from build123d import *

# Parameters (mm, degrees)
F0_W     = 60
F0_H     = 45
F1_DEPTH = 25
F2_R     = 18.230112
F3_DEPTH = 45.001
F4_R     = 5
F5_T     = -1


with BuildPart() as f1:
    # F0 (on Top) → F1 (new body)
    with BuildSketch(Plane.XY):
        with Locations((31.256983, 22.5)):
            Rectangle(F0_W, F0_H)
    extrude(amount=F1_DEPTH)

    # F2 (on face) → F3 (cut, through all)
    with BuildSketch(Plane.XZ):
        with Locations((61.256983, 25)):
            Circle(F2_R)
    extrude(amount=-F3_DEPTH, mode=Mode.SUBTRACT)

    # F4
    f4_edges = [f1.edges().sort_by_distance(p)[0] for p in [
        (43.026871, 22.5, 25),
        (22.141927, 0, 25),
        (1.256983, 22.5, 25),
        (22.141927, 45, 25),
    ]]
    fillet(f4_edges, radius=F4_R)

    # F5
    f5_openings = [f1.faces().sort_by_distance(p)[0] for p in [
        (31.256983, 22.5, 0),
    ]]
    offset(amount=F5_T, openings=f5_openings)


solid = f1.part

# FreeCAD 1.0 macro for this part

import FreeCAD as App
import Part
import Sketcher


def edges_at(feature, points):
    """Names of the edges that pass closest to the given points."""
    edges = feature.Shape.Edges
    near = lambda p: min(range(len(edges)), key=lambda i: edges[i].distToShape(Part.Vertex(*p))[0])
    return sorted({f"Edge{near(p) + 1}" for p in points})


def faces_at(feature, points):
    """Names of the faces that lie closest to the given points."""
    faces = feature.Shape.Faces
    near = lambda p: min(range(len(faces)), key=lambda i: faces[i].distToShape(Part.Vertex(*p))[0])
    return sorted({f"Face{near(p) + 1}" for p in points})


def add_polygon(sketch, points):
    """Adds a closed chain of lines whose ends are joined by coincident constraints."""
    first, n = sketch.GeometryCount, len(points)
    for a, b in zip(points, points[1:] + points[:1]):
        sketch.addGeometry(Part.LineSegment(App.Vector(*a, 0), App.Vector(*b, 0)), False)
    for i in range(n):
        sketch.addConstraint(Sketcher.Constraint("Coincident", first + i, 2, first + (i + 1) % n, 1))

doc = App.newDocument("Part")
body = doc.addObject("PartDesign::Body", "Body")

# Sketch on XY plane
sketch1 = doc.addObject("Sketcher::SketchObject", "Sketch")
body.addObject(sketch1)
sketch1.AttachmentSupport = (doc.XY_Plane, [""])
sketch1.MapMode = "FlatFace"
add_polygon(sketch1, [(1, 45), (1, 0), (61, 0), (61, 45)])  # lines 0-3
sketch1.addConstraint(Sketcher.Constraint("Vertical", 0))
sketch1.addConstraint(Sketcher.Constraint("Horizontal", 1))
sketch1.addConstraint(Sketcher.Constraint("Vertical", 2))
sketch1.addConstraint(Sketcher.Constraint("Horizontal", 3))
sketch1.addConstraint(Sketcher.Constraint("PointOnObject", 0, 2, -1))
sketch1.addConstraint(Sketcher.Constraint("DistanceX", 1, 1, 1, 2, 60.0))
sketch1.addConstraint(Sketcher.Constraint("DistanceY", 0, 2, 0, 1, 45.0))
sketch1.addConstraint(Sketcher.Constraint("DistanceX", -1, 1, 0, 2, 1.256983))
pad1 = doc.addObject("PartDesign::Pad", "Pad")
body.addObject(pad1)
pad1.Profile = sketch1
pad1.Length = 25

# Sketch on XZ plane
sketch2 = doc.addObject("Sketcher::SketchObject", "Sketch001")
body.addObject(sketch2)
sketch2.AttachmentSupport = (doc.XZ_Plane, [""])
sketch2.MapMode = "FlatFace"
sketch2.addGeometry(Part.Circle(App.Vector(61, 25, 0), App.Vector(0, 0, 1), 18), False)
sketch2.addConstraint(Sketcher.Constraint("DistanceY", -1, 1, 0, 3, 25.0))
sketch2.addConstraint(Sketcher.Constraint("Diameter", 0, 36.460224))
sketch2.addConstraint(Sketcher.Constraint("DistanceX", -1, 1, 0, 3, 61.256983))
pocket1 = doc.addObject("PartDesign::Pocket", "Pocket")
body.addObject(pocket1)
pocket1.Profile = sketch2
pocket1.Type = "ThroughAll"
doc.recompute()

fillet = doc.addObject("PartDesign::Fillet", "Fillet")
body.addObject(fillet)
fillet.Base = (pocket1, edges_at(pocket1, [
    (43.027, 22.5, 25),
    (22.142, 0, 25),
    (1.257, 22.5, 25),
    (22.142, 45, 25),
]))
fillet.Radius = 5
doc.recompute()

thickness = doc.addObject("PartDesign::Thickness", "Thickness")
body.addObject(thickness)
thickness.Base = (fillet, faces_at(fillet, [(31.257, 22.5, 0)]))
thickness.Value = 1
thickness.Reversed = True
thickness.Join = "Arc"

doc.recompute()
